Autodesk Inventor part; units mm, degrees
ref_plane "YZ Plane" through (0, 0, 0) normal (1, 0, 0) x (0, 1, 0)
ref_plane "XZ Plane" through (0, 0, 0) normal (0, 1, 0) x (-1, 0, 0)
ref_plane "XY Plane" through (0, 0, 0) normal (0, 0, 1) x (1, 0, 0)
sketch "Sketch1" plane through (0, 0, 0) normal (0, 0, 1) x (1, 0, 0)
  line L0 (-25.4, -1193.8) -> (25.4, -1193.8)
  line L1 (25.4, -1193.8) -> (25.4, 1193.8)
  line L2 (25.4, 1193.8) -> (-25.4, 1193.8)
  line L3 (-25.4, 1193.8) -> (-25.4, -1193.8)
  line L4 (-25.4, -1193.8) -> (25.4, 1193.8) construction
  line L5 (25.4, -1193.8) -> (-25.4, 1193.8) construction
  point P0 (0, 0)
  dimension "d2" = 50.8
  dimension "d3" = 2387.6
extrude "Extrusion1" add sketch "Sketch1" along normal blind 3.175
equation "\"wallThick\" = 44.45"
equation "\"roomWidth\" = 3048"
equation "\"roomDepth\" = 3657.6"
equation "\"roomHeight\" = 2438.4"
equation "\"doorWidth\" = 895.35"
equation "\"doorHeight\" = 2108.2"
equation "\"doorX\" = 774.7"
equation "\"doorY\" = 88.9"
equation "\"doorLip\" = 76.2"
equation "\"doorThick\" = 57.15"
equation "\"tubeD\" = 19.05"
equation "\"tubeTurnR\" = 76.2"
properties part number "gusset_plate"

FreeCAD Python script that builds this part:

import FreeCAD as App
import Part
import Sketcher

V = App.Vector
Q = App.Units.Quantity

doc = App.newDocument("Part")
body = doc.addObject("PartDesign::Body", "Body")

# Sketch on XY plane
sketch1 = doc.addObject("Sketcher::SketchObject", "Sketch")
body.addObject(sketch1)
sketch1.AttachmentSupport = (doc.XY_Plane, [""])
sketch1.MapMode = "FlatFace"
sketch1.addGeometry([
    Part.LineSegment(V(-25, 1194, 0), V(-25, -1194, 0)),
    Part.LineSegment(V(-25, -1194, 0), V(25, -1194, 0)),
    Part.LineSegment(V(25, -1194, 0), V(25, 1194, 0)),
    Part.LineSegment(V(25, 1194, 0), V(-25, 1194, 0)),
], False)
sketch1.addConstraint([
    Sketcher.Constraint("Coincident", 0, 2, 1, 1),
    Sketcher.Constraint("Coincident", 1, 2, 2, 1),
    Sketcher.Constraint("Coincident", 2, 2, 3, 1),
    Sketcher.Constraint("Coincident", 3, 2, 0, 1),
    Sketcher.Constraint("Vertical", 0),
    Sketcher.Constraint("Horizontal", 1),
    Sketcher.Constraint("Vertical", 2),
    Sketcher.Constraint("Horizontal", 3),
    Sketcher.Constraint("Symmetric", 0, 2, 2, 2, -1, 1),
    Sketcher.Constraint("DistanceX", 1, 1, 1, 2, Q("2 in")),
    Sketcher.Constraint("DistanceY", 0, 2, 0, 1, Q("94 in")),
])
pad1 = doc.addObject("PartDesign::Pad", "Pad")
body.addObject(pad1)
pad1.Profile = sketch1
pad1.Length = Q("0.125 in")

doc.recompute()
